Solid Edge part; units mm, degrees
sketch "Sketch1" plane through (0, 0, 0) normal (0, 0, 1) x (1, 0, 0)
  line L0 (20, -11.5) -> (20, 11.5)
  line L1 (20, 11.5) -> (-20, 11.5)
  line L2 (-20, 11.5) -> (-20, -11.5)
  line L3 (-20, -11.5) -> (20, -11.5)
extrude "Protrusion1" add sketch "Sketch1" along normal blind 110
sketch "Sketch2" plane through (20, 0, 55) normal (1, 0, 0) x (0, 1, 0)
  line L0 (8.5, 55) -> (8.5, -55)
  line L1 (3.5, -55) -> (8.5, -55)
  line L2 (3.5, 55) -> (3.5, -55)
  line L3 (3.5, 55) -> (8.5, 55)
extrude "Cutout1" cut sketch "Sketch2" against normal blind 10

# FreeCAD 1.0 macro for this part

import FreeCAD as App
import Part
import Sketcher
from FreeCAD import Vector

doc = App.newDocument("Part")
params = doc.addObject("Spreadsheet::Sheet", "Params")
for row, (alias, value) in enumerate([
    ("sketch1_width", "40 mm"),
    ("sketch1_height", "23 mm"),
    ("pad1_length", "110 mm"),
    ("sketch2_width", "5 mm"),
    ("sketch2_height", "110 mm"),
    ("pocket1_length", "10 mm"),
], start=1):
    params.set(f"A{row}", alias)
    params.set(f"B{row}", "=" + value)
    params.setAlias(f"B{row}", alias)

body = doc.addObject("PartDesign::Body", "Body")

sketch1 = body.newObject("Sketcher::SketchObject", "Sketch")
sketch1.AttachmentSupport = (doc.getObject("XY_Plane"), [""])
sketch1.MapMode = "FlatFace"
sketch1.addGeometry([
    Part.LineSegment(Vector(-20, -12, 0), Vector(20, -12, 0)),
    Part.LineSegment(Vector(20, -12, 0), Vector(20, 12, 0)),
    Part.LineSegment(Vector(20, 12, 0), Vector(-20, 12, 0)),
    Part.LineSegment(Vector(-20, 12, 0), Vector(-20, -12, 0)),
], False)
sketch1.addConstraint([
    Sketcher.Constraint("Coincident", 0, 2, 1, 1),
    Sketcher.Constraint("Coincident", 1, 2, 2, 1),
    Sketcher.Constraint("Coincident", 2, 2, 3, 1),
    Sketcher.Constraint("Coincident", 3, 2, 0, 1),
    Sketcher.Constraint("Horizontal", 0),
    Sketcher.Constraint("Vertical", 1),
    Sketcher.Constraint("Horizontal", 2),
    Sketcher.Constraint("Vertical", 3),
    Sketcher.Constraint("Symmetric", 0, 2, 2, 2, -1, 1),
    Sketcher.Constraint("DistanceX", 0, 1, 0, 2, 40.0),
    Sketcher.Constraint("DistanceY", 1, 1, 1, 2, 23.0),
])
sketch1.setExpression("Constraints[9]", "Params.sketch1_width")
sketch1.setExpression("Constraints[10]", "Params.sketch1_height")
pad1 = body.newObject("PartDesign::Pad", "Pad")
pad1.Profile = sketch1
pad1.setExpression("Length", "Params.pad1_length")

sketch2 = body.newObject("Sketcher::SketchObject", "Sketch001")
sketch2.AttachmentSupport = (doc.getObject("YZ_Plane"), [""])
sketch2.MapMode = "FlatFace"
sketch2.AttachmentOffset = App.Placement(Vector(0, 0, 20), App.Rotation())
sketch2.addGeometry([
    Part.LineSegment(Vector(8, 0, 0), Vector(8, 110, 0)),
    Part.LineSegment(Vector(8, 110, 0), Vector(4, 110, 0)),
    Part.LineSegment(Vector(4, 110, 0), Vector(4, 0, 0)),
    Part.LineSegment(Vector(4, 0, 0), Vector(8, 0, 0)),
], False)
sketch2.addConstraint([
    Sketcher.Constraint("Coincident", 0, 2, 1, 1),
    Sketcher.Constraint("Coincident", 1, 2, 2, 1),
    Sketcher.Constraint("Coincident", 2, 2, 3, 1),
    Sketcher.Constraint("Coincident", 3, 2, 0, 1),
    Sketcher.Constraint("Vertical", 0),
    Sketcher.Constraint("Horizontal", 1),
    Sketcher.Constraint("Vertical", 2),
    Sketcher.Constraint("Horizontal", 3),
    Sketcher.Constraint("PointOnObject", 2, 2, -1),
    Sketcher.Constraint("DistanceX", 1, 2, 1, 1, 5.0),
    Sketcher.Constraint("DistanceY", 0, 1, 0, 2, 110.0),
    Sketcher.Constraint("DistanceX", -1, 1, 0, 2, 8.5),
])
sketch2.setExpression("Constraints[9]", "Params.sketch2_width")
sketch2.setExpression("Constraints[10]", "Params.sketch2_height")
pocket1 = body.newObject("PartDesign::Pocket", "Pocket")
pocket1.Profile = sketch2
pocket1.setExpression("Length", "Params.pocket1_length")

doc.recompute()
